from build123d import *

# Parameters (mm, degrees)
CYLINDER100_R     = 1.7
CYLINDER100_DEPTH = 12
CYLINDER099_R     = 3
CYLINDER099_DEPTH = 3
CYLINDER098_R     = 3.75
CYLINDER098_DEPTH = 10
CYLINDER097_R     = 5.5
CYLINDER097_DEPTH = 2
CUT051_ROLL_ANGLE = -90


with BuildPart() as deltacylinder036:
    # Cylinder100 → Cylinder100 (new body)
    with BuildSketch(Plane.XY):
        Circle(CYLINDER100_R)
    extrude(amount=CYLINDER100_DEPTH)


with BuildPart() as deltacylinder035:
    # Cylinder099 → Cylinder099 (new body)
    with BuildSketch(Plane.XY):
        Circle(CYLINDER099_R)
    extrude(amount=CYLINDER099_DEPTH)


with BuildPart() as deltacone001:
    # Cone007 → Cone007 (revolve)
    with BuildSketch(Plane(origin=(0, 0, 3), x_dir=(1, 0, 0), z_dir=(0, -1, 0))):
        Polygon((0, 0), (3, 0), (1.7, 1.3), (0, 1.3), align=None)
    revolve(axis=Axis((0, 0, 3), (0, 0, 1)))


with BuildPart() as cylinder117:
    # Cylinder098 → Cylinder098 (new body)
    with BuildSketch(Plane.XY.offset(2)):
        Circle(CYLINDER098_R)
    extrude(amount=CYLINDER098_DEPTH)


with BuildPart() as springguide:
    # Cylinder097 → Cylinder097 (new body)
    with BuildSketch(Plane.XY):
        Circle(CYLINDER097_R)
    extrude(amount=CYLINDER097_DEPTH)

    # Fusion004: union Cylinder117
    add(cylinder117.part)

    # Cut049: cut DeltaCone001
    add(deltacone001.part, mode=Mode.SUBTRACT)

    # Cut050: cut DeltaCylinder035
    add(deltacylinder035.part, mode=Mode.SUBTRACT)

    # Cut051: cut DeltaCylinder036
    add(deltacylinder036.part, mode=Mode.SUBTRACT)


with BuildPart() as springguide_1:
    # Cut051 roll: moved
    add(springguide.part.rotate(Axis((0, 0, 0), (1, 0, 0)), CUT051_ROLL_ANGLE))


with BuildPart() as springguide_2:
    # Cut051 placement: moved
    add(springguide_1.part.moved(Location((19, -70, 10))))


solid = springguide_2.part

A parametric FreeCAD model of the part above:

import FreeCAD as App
import Part
import Sketcher
Q = App.Units.Quantity

doc = App.newDocument("Part")
body = doc.addObject("PartDesign::Body", "Body")

# Sketch on XY plane
sketch1 = doc.addObject("Sketcher::SketchObject", "Sketch")
body.addObject(sketch1)
sketch1.AttachmentSupport = (doc.XY_Plane, [""])
sketch1.MapMode = "FlatFace"
sketch1.addGeometry(Part.Circle(App.Vector(0, 0, 0), App.Vector(0, 0, 1), 1.7), False)
sketch1.addConstraint([
    Sketcher.Constraint("Coincident", 0, 3, -1, 1),
    Sketcher.Constraint("Diameter", 0, 3.4),
])
pad1 = doc.addObject("PartDesign::Pad", "Pad")
body.addObject(pad1)
pad1.Profile = sketch1
pad1.Length = 12
body2 = doc.addObject("PartDesign::Body", "Body001")

# Sketch on XY plane
sketch2 = doc.addObject("Sketcher::SketchObject", "Sketch001")
body2.addObject(sketch2)
sketch2.AttachmentSupport = (doc.getObject("XY_Plane001"), [""])
sketch2.MapMode = "FlatFace"
sketch2.addGeometry(Part.Circle(App.Vector(0, 0, 0), App.Vector(0, 0, 1), 3), False)
sketch2.addConstraint([
    Sketcher.Constraint("Coincident", 0, 3, -1, 1),
    Sketcher.Constraint("Diameter", 0, 6.0),
])
pad2 = doc.addObject("PartDesign::Pad", "Pad001")
body2.addObject(pad2)
pad2.Profile = sketch2
pad2.Length = 3
body3 = doc.addObject("PartDesign::Body", "Body002")

# Sketch on XZ plane
sketch3 = doc.addObject("Sketcher::SketchObject", "Sketch002")
body3.addObject(sketch3)
sketch3.AttachmentSupport = (doc.getObject("XZ_Plane002"), [""])
sketch3.MapMode = "FlatFace"
sketch3.addGeometry([
    Part.LineSegment(App.Vector(0, 3, 0), App.Vector(3, 3, 0)),
    Part.LineSegment(App.Vector(3, 3, 0), App.Vector(1.7, 4.3, 0)),
    Part.LineSegment(App.Vector(1.7, 4.3, 0), App.Vector(0, 4.3, 0)),
    Part.LineSegment(App.Vector(0, 4.3, 0), App.Vector(0, 3, 0)),
], False)
sketch3.addConstraint([
    Sketcher.Constraint("Coincident", 0, 2, 1, 1),
    Sketcher.Constraint("Coincident", 1, 2, 2, 1),
    Sketcher.Constraint("Coincident", 2, 2, 3, 1),
    Sketcher.Constraint("Coincident", 3, 2, 0, 1),
    Sketcher.Constraint("Horizontal", 0),
    Sketcher.Constraint("Horizontal", 2),
    Sketcher.Constraint("Vertical", 3),
    Sketcher.Constraint("PointOnObject", 2, 2, -2),
    Sketcher.Constraint("DistanceX", 0, 1, 0, 2, 3.0),
    Sketcher.Constraint("Angle", 1, Q("135 deg")),
    Sketcher.Constraint("DistanceX", 2, 2, 2, 1, 1.7),
    Sketcher.Constraint("DistanceY", -1, 1, 0, 2, 3.0),
])
revolution = doc.addObject("PartDesign::Revolution", "Revolution")
body3.addObject(revolution)
revolution.Profile = sketch3
revolution.ReferenceAxis = (sketch3, ["V_Axis"])
revolution.Angle = 360
body4 = doc.addObject("PartDesign::Body", "Body003")

# Sketch on XY plane
sketch4 = doc.addObject("Sketcher::SketchObject", "Sketch003")
body4.addObject(sketch4)
sketch4.AttachmentSupport = (doc.getObject("XY_Plane003"), [""])
sketch4.MapMode = "FlatFace"
sketch4.AttachmentOffset = App.Placement(App.Vector(0, 0, 2), App.Rotation())
sketch4.addGeometry(Part.Circle(App.Vector(0, 0, 0), App.Vector(0, 0, 1), 3.75), False)
sketch4.addConstraint([
    Sketcher.Constraint("Coincident", 0, 3, -1, 1),
    Sketcher.Constraint("Diameter", 0, 7.5),
])
pad3 = doc.addObject("PartDesign::Pad", "Pad002")
body4.addObject(pad3)
pad3.Profile = sketch4
pad3.Length = 10
body5 = doc.addObject("PartDesign::Body", "Body004")

# Sketch on XY plane
sketch5 = doc.addObject("Sketcher::SketchObject", "Sketch004")
body5.addObject(sketch5)
sketch5.AttachmentSupport = (doc.getObject("XY_Plane004"), [""])
sketch5.MapMode = "FlatFace"
sketch5.addGeometry(Part.Circle(App.Vector(0, 0, 0), App.Vector(0, 0, 1), 5.5), False)
sketch5.addConstraint([
    Sketcher.Constraint("Coincident", 0, 3, -1, 1),
    Sketcher.Constraint("Diameter", 0, 11.0),
])
pad4 = doc.addObject("PartDesign::Pad", "Pad003")
body5.addObject(pad4)
pad4.Profile = sketch5
pad4.Length = 2
doc.recompute()

boolean = doc.addObject("PartDesign::Boolean", "Boolean")
body5.addObject(boolean)
boolean.Type = "Fuse"
boolean.addObjects([body4])
doc.recompute()

boolean2 = doc.addObject("PartDesign::Boolean", "Boolean001")
body5.addObject(boolean2)
boolean2.Type = "Cut"
boolean2.addObjects([body3])
doc.recompute()

boolean3 = doc.addObject("PartDesign::Boolean", "Boolean002")
body5.addObject(boolean3)
boolean3.Type = "Cut"
boolean3.addObjects([body2])
doc.recompute()

boolean4 = doc.addObject("PartDesign::Boolean", "Boolean003")
body5.addObject(boolean4)
boolean4.Type = "Cut"
boolean4.addObjects([body])
body6 = doc.addObject("PartDesign::Body", "Body005")
doc.recompute()

body5.Placement = App.Placement(App.Vector(0, 0, 0), App.Rotation(App.Vector(1, 0, 0), 270))
boolean5 = doc.addObject("PartDesign::Boolean", "Boolean004")
body6.addObject(boolean5)
boolean5.Type = "Fuse"
boolean5.addObjects([body5])
body7 = doc.addObject("PartDesign::Body", "Body006")
doc.recompute()

body6.Placement = App.Placement(App.Vector(19, -70, 10), App.Rotation(App.Vector(0, 0, 1), 0))
boolean6 = doc.addObject("PartDesign::Boolean", "Boolean005")
body7.addObject(boolean6)
boolean6.Type = "Fuse"
boolean6.addObjects([body6])

doc.recompute()
